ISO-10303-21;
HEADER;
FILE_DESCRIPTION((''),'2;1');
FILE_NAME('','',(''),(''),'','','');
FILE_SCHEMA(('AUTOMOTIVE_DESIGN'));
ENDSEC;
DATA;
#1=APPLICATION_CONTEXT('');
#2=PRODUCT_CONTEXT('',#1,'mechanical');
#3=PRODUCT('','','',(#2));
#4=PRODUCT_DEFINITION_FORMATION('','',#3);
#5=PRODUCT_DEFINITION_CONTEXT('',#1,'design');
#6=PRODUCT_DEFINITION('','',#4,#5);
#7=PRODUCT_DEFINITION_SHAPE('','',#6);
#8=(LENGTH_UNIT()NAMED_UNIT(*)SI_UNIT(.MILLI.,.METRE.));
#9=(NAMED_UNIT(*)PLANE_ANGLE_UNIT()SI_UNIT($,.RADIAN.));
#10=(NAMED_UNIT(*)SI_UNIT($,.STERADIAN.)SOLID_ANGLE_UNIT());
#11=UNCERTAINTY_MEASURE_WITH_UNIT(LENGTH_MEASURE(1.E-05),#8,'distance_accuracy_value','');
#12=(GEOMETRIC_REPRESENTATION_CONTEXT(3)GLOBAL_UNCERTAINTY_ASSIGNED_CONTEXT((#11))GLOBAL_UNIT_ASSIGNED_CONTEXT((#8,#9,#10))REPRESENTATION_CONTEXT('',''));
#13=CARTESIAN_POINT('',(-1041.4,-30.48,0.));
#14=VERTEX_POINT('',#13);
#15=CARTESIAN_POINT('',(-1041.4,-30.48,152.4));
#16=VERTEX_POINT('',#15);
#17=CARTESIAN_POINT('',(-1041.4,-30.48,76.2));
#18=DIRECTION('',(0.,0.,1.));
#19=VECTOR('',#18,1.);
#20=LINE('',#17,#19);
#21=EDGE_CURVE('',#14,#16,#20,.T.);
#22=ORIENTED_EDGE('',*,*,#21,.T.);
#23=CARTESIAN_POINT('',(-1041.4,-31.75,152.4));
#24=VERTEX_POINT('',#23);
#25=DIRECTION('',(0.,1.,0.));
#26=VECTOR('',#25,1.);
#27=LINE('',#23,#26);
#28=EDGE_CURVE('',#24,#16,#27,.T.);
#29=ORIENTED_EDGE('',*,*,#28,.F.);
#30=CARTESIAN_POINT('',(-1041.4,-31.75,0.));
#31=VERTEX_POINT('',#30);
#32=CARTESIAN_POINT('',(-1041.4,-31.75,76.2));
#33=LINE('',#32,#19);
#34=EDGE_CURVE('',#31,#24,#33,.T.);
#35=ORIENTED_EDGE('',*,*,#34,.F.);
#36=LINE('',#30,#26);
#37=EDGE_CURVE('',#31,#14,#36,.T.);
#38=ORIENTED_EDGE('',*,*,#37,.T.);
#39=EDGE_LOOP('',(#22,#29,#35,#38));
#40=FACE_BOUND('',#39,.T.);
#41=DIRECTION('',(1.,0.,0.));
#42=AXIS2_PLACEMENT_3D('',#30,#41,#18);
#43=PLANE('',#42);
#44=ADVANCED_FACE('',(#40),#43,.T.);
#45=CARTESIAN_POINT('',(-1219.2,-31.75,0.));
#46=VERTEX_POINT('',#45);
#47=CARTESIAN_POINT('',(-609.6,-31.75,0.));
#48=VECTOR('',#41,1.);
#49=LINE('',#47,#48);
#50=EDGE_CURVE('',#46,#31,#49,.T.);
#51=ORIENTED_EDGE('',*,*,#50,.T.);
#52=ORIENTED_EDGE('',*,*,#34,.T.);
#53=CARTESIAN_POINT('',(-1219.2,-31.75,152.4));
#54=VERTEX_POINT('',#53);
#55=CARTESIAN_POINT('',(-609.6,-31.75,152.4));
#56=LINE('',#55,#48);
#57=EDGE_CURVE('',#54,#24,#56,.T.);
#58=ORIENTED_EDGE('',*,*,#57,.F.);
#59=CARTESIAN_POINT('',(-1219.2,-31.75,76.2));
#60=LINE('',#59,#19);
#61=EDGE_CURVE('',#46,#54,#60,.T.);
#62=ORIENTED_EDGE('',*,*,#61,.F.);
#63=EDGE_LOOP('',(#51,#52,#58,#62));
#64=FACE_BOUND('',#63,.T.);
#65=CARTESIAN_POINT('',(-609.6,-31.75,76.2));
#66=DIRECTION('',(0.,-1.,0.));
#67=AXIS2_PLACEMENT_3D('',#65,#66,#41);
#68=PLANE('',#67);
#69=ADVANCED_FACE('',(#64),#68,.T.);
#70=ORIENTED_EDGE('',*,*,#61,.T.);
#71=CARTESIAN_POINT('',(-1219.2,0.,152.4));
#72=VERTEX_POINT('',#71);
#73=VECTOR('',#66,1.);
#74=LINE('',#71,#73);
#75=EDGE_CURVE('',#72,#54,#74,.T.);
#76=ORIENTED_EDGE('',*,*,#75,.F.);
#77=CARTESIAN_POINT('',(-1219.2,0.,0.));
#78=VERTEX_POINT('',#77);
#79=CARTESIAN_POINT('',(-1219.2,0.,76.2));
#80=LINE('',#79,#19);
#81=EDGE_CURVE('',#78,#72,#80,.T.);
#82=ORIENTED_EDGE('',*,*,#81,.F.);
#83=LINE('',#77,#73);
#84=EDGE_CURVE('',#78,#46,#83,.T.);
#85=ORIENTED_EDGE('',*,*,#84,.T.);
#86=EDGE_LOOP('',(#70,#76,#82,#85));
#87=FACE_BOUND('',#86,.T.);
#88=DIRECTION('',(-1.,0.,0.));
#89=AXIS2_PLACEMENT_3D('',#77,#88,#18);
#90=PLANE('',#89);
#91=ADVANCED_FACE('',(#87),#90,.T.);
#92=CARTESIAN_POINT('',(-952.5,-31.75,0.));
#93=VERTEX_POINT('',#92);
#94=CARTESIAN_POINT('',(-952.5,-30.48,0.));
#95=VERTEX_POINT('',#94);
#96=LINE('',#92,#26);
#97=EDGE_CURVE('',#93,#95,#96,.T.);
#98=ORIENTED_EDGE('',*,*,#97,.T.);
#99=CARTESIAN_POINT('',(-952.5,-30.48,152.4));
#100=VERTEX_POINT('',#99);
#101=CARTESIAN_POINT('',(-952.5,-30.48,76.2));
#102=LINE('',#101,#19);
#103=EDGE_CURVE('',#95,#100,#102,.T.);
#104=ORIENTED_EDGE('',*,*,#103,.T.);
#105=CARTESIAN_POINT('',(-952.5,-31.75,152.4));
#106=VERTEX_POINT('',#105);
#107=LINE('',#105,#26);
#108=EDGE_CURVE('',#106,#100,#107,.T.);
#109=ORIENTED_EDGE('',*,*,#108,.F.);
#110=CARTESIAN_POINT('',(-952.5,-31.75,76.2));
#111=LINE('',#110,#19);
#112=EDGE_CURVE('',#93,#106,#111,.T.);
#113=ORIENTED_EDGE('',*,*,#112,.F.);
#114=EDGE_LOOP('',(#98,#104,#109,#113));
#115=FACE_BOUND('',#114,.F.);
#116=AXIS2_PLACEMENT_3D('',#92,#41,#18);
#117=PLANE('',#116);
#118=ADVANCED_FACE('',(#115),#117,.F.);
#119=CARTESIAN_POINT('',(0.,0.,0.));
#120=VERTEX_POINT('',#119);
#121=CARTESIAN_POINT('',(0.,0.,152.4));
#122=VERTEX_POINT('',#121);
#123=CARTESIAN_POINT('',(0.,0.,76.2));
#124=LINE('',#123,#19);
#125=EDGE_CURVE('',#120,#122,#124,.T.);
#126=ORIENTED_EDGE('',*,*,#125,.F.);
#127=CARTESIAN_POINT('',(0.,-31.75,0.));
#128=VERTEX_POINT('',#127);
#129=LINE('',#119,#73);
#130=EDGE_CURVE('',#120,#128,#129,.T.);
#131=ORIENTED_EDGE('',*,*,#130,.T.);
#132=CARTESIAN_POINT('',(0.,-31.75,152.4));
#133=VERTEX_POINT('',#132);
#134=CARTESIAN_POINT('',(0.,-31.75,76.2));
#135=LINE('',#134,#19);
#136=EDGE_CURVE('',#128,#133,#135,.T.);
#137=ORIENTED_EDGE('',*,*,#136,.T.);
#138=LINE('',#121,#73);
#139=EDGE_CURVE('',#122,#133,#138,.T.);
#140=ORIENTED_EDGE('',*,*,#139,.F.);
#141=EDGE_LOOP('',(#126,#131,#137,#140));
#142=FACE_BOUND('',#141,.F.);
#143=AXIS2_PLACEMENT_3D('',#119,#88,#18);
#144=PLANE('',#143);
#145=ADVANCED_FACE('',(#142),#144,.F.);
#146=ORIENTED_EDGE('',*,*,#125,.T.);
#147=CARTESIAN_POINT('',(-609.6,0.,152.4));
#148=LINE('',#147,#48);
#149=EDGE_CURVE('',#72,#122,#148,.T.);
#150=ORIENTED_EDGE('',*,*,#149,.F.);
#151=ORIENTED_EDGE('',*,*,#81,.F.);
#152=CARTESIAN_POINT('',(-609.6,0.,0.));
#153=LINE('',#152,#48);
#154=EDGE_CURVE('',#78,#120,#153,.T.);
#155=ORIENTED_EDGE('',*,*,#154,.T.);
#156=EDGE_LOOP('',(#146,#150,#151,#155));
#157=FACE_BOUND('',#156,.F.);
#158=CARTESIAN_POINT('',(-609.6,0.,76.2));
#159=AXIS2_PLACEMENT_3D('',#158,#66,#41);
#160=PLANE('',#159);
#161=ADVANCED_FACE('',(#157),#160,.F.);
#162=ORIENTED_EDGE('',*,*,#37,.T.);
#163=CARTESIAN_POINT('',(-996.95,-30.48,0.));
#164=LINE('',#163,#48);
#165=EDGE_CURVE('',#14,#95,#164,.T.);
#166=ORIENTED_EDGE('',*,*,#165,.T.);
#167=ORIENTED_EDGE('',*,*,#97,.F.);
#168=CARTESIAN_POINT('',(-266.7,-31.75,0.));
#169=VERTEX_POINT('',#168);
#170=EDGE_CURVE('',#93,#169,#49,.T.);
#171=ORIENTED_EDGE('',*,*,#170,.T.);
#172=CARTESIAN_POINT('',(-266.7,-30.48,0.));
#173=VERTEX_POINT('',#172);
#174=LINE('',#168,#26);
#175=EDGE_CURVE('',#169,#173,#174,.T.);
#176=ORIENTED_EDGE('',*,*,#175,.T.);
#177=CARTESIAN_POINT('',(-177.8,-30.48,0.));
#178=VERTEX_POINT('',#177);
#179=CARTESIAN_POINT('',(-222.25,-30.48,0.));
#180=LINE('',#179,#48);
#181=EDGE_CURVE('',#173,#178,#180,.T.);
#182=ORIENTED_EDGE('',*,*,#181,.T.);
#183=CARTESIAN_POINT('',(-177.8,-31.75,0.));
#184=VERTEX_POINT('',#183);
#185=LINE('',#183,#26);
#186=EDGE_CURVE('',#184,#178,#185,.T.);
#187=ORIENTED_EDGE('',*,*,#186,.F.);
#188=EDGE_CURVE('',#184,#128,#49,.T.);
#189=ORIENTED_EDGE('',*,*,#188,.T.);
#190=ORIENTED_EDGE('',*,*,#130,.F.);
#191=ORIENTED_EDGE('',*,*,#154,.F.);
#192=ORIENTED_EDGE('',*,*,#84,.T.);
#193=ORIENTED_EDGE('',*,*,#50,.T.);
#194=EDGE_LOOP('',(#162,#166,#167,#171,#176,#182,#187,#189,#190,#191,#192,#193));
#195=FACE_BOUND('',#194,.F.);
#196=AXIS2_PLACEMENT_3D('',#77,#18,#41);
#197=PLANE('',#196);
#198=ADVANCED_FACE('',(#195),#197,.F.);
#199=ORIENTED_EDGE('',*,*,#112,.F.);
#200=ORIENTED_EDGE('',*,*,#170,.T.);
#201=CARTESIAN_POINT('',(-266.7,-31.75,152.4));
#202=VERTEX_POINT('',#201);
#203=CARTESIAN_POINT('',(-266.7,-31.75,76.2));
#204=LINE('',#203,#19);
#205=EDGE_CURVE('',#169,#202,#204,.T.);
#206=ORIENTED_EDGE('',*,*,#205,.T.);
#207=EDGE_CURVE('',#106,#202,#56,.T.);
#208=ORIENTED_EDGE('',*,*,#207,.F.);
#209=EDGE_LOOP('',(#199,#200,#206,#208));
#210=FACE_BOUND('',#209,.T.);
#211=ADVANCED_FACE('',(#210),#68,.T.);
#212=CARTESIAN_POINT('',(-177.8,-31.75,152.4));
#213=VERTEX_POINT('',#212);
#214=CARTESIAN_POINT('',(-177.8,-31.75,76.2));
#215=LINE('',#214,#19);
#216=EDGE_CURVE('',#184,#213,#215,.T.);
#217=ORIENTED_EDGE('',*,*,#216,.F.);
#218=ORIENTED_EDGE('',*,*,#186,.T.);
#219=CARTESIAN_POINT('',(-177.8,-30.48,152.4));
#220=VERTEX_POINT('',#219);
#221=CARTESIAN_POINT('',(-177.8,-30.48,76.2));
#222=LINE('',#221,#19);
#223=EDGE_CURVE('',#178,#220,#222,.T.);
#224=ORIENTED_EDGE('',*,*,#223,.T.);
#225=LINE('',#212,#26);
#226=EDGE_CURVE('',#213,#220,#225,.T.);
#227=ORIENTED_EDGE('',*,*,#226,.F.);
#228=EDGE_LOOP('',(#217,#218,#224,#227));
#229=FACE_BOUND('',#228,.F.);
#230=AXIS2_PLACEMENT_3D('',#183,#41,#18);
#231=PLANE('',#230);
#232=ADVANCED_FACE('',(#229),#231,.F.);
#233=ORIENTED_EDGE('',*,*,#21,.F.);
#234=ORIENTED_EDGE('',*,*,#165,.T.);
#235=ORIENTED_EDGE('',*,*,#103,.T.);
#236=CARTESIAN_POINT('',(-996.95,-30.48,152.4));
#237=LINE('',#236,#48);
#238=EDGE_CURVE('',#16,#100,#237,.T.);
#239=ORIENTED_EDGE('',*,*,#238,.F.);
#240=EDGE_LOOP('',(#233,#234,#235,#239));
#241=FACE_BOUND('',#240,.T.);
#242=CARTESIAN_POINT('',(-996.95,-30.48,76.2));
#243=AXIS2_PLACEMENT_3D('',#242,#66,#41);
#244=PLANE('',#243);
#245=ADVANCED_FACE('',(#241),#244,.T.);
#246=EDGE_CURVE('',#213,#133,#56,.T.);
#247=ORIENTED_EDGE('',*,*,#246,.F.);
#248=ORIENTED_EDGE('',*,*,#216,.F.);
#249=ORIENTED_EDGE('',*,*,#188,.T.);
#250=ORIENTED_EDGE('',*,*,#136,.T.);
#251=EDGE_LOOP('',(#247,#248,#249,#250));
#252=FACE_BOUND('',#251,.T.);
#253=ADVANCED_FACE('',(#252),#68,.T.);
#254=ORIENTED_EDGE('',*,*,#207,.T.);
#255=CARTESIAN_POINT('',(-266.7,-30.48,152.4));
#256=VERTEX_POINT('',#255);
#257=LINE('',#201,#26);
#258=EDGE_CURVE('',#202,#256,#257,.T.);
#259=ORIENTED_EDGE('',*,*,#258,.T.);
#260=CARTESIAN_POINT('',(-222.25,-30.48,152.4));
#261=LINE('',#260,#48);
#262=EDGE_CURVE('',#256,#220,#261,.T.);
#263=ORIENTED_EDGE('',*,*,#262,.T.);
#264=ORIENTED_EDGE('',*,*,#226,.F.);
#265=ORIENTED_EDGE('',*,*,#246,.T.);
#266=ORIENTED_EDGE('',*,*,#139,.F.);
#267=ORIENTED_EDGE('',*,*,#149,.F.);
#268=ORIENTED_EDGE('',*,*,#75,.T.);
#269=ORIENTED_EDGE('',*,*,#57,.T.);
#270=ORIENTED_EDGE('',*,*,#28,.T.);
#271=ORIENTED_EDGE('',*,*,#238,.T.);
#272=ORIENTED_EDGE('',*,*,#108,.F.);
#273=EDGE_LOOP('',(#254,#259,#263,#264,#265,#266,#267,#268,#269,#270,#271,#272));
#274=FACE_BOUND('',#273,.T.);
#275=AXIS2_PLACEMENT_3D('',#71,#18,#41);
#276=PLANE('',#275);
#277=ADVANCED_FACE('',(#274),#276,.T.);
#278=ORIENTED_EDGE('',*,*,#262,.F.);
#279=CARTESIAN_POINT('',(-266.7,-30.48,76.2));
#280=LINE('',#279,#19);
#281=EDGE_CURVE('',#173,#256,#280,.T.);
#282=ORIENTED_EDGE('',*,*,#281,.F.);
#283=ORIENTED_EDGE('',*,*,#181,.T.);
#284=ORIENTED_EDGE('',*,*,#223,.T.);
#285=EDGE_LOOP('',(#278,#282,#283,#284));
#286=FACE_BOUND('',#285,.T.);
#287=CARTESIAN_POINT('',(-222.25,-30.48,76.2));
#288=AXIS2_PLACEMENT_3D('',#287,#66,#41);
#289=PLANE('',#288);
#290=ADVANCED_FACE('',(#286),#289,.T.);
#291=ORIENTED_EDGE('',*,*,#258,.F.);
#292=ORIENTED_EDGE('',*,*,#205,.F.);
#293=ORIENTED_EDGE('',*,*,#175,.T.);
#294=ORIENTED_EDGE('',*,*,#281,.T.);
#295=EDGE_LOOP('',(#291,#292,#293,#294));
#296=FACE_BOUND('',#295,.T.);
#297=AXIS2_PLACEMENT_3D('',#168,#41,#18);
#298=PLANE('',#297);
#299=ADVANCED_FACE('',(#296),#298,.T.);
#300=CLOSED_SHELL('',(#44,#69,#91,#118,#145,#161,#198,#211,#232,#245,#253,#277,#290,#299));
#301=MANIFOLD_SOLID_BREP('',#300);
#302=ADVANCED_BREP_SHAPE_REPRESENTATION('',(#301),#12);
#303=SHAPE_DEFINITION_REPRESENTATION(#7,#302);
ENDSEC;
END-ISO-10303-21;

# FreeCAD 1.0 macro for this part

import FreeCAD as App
import Part
import Sketcher
from FreeCAD import Vector
Q = App.Units.Quantity

doc = App.newDocument("Part")
params = doc.addObject("Spreadsheet::Sheet", "Params")
for row, (alias, value) in enumerate([
    ("sketch1_width", "48 in"),
    ("sketch1_height", "6 in"),
    ("pad1_length", "1.25 in"),
    ("sketch2_height", "6 in"),
    ("sketch2_width", "3.5 in"),
    ("pocket1_length", "0.05 in"),
    ("sketch3_height", "6 in"),
    ("sketch3_width", "3.5 in"),
    ("pocket2_length", "0.05 in"),
], start=1):
    params.set(f"A{row}", alias)
    params.set(f"B{row}", "=" + value)
    params.setAlias(f"B{row}", alias)

body = doc.addObject("PartDesign::Body", "Body")

# Sketch on XZ plane
sketch1 = body.newObject("Sketcher::SketchObject", "Sketch")
sketch1.AttachmentSupport = (doc.getObject("XZ_Plane"), [""])
sketch1.MapMode = "FlatFace"
sketch1.addGeometry([
    Part.LineSegment(Vector(-1219, 152, 0), Vector(-1219, 0, 0)),
    Part.LineSegment(Vector(-1219, 0, 0), Vector(0, 0, 0)),
    Part.LineSegment(Vector(0, 0, 0), Vector(0, 152, 0)),
    Part.LineSegment(Vector(0, 152, 0), Vector(-1219, 152, 0)),
], False)
sketch1.addConstraint([
    Sketcher.Constraint("Coincident", 0, 2, 1, 1),
    Sketcher.Constraint("Coincident", 1, 2, 2, 1),
    Sketcher.Constraint("Coincident", 2, 2, 3, 1),
    Sketcher.Constraint("Coincident", 3, 2, 0, 1),
    Sketcher.Constraint("Vertical", 0),
    Sketcher.Constraint("Horizontal", 1),
    Sketcher.Constraint("Vertical", 2),
    Sketcher.Constraint("Horizontal", 3),
    Sketcher.Constraint("Coincident", 1, 2, -1, 1),
    Sketcher.Constraint("DistanceX", 1, 1, 1, 2, Q("48 in")),
    Sketcher.Constraint("DistanceY", 0, 2, 0, 1, Q("6 in")),
])
sketch1.setExpression("Constraints[9]", "Params.sketch1_width")
sketch1.setExpression("Constraints[10]", "Params.sketch1_height")
pad1 = body.newObject("PartDesign::Pad", "Pad")
pad1.Profile = sketch1
pad1.setExpression("Length", "Params.pad1_length")

# Sketch on XZ plane
sketch2 = body.newObject("Sketcher::SketchObject", "Sketch001")
sketch2.AttachmentSupport = (doc.getObject("XZ_Plane"), [""])
sketch2.MapMode = "FlatFace"
sketch2.AttachmentOffset = App.Placement(Vector(0, 0, 1.25 * 25.4), App.Rotation())
sketch2.addGeometry([
    Part.LineSegment(Vector(-1041, 152, 0), Vector(-1041, 0, 0)),
    Part.LineSegment(Vector(-1041, 0, 0), Vector(-952, 0, 0)),
    Part.LineSegment(Vector(-952, 0, 0), Vector(-952, 152, 0)),
    Part.LineSegment(Vector(-952, 152, 0), Vector(-1041, 152, 0)),
], False)
sketch2.addConstraint([
    Sketcher.Constraint("Coincident", 0, 2, 1, 1),
    Sketcher.Constraint("Coincident", 1, 2, 2, 1),
    Sketcher.Constraint("Coincident", 2, 2, 3, 1),
    Sketcher.Constraint("Coincident", 3, 2, 0, 1),
    Sketcher.Constraint("Vertical", 0),
    Sketcher.Constraint("Horizontal", 1),
    Sketcher.Constraint("Vertical", 2),
    Sketcher.Constraint("Horizontal", 3),
    Sketcher.Constraint("PointOnObject", 0, 2, -1),
    Sketcher.Constraint("DistanceY", 0, 2, 0, 1, Q("6 in")),
    Sketcher.Constraint("DistanceX", 1, 1, 1, 2, Q("3.5 in")),
    Sketcher.Constraint("DistanceX", 0, 2, -1, 1, Q("41 in")),
])
sketch2.setExpression("Constraints[9]", "Params.sketch2_height")
sketch2.setExpression("Constraints[10]", "Params.sketch2_width")
pocket1 = body.newObject("PartDesign::Pocket", "Pocket")
pocket1.Profile = sketch2
pocket1.setExpression("Length", "Params.pocket1_length")

# Sketch on XZ plane
sketch3 = body.newObject("Sketcher::SketchObject", "Sketch002")
sketch3.AttachmentSupport = (doc.getObject("XZ_Plane"), [""])
sketch3.MapMode = "FlatFace"
sketch3.AttachmentOffset = App.Placement(Vector(0, 0, 1.25 * 25.4), App.Rotation())
sketch3.addGeometry([
    Part.LineSegment(Vector(-267, 152, 0), Vector(-267, 0, 0)),
    Part.LineSegment(Vector(-267, 0, 0), Vector(-178, 0, 0)),
    Part.LineSegment(Vector(-178, 0, 0), Vector(-178, 152, 0)),
    Part.LineSegment(Vector(-178, 152, 0), Vector(-267, 152, 0)),
], False)
sketch3.addConstraint([
    Sketcher.Constraint("Coincident", 0, 2, 1, 1),
    Sketcher.Constraint("Coincident", 1, 2, 2, 1),
    Sketcher.Constraint("Coincident", 2, 2, 3, 1),
    Sketcher.Constraint("Coincident", 3, 2, 0, 1),
    Sketcher.Constraint("Vertical", 0),
    Sketcher.Constraint("Horizontal", 1),
    Sketcher.Constraint("Vertical", 2),
    Sketcher.Constraint("Horizontal", 3),
    Sketcher.Constraint("PointOnObject", 0, 2, -1),
    Sketcher.Constraint("DistanceY", 0, 2, 0, 1, Q("6 in")),
    Sketcher.Constraint("DistanceX", 1, 1, 1, 2, Q("3.5 in")),
    Sketcher.Constraint("DistanceX", 1, 2, -1, 1, Q("7 in")),
])
sketch3.setExpression("Constraints[9]", "Params.sketch3_height")
sketch3.setExpression("Constraints[10]", "Params.sketch3_width")
pocket2 = body.newObject("PartDesign::Pocket", "Pocket001")
pocket2.Profile = sketch3
pocket2.setExpression("Length", "Params.pocket2_length")

doc.recompute()
